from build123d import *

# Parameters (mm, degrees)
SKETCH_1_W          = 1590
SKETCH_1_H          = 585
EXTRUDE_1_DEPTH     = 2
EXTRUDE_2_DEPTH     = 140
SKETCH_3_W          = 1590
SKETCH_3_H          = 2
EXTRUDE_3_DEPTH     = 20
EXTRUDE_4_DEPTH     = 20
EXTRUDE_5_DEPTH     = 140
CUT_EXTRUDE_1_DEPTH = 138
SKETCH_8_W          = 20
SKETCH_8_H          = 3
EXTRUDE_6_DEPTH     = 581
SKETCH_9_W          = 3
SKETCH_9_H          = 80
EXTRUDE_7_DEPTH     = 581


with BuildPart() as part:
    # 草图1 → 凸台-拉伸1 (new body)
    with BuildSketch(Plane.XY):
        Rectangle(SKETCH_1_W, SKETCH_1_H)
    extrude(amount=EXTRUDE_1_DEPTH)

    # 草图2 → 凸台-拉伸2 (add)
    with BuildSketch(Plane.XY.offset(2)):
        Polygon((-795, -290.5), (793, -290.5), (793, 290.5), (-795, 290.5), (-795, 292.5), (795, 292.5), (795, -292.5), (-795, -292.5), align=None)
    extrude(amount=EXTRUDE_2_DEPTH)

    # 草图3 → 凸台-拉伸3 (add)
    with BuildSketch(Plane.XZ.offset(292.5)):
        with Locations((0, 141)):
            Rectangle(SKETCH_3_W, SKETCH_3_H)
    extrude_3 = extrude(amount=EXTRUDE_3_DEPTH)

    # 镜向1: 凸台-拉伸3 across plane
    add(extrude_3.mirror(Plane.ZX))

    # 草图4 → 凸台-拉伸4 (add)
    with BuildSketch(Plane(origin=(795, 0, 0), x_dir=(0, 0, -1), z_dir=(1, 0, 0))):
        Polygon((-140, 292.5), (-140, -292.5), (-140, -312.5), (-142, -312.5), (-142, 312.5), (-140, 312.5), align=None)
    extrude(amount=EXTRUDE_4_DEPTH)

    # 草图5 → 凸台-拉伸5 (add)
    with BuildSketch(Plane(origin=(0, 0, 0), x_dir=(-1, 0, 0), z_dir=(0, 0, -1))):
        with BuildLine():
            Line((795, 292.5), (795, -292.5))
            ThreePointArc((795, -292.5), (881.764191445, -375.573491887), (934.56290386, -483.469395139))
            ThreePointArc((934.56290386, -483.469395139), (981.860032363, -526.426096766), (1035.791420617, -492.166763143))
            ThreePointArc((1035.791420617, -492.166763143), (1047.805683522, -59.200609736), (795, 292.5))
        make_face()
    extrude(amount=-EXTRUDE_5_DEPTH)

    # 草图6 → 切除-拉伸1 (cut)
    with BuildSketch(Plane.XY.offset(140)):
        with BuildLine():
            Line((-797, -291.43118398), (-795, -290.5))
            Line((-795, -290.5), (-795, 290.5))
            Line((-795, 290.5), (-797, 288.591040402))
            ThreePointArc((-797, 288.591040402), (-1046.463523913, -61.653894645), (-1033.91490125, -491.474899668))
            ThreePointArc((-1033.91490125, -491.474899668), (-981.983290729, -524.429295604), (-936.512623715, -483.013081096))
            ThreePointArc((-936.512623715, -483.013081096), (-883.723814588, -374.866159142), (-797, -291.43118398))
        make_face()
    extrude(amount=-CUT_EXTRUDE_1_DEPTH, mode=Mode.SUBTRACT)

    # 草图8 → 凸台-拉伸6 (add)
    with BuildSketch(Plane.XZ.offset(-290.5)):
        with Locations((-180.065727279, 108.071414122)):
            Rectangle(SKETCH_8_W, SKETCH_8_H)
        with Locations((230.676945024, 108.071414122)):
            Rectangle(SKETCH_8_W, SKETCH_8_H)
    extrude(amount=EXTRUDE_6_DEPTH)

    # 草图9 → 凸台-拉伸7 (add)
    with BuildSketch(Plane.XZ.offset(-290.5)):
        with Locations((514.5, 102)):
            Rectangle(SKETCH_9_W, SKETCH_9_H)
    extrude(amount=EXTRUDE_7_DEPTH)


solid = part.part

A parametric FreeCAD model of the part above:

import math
import FreeCAD as App
import Part
import Sketcher
from FreeCAD import Vector
Q = App.Units.Quantity


def add_polygon(sketch, points):
    """Adds a closed chain of lines whose ends are joined by coincident constraints."""
    first, n = sketch.GeometryCount, len(points)
    for a, b in zip(points, points[1:] + points[:1]):
        sketch.addGeometry(Part.LineSegment(App.Vector(*a, 0), App.Vector(*b, 0)), False)
    for i in range(n):
        sketch.addConstraint(Sketcher.Constraint("Coincident", first + i, 2, first + (i + 1) % n, 1))

doc = App.newDocument("Part")
body = doc.addObject("PartDesign::Body", "Body")

# Sketch on XY plane
sketch1 = body.newObject("Sketcher::SketchObject", "Sketch")
sketch1.AttachmentSupport = (doc.getObject("XY_Plane"), [""])
sketch1.MapMode = "FlatFace"
add_polygon(sketch1, [(-795, 292.5), (-795, -292.5), (795, -292.5), (795, 292.5)])  # lines 0-3
sketch1.addConstraint(Sketcher.Constraint("Vertical", 0))
sketch1.addConstraint(Sketcher.Constraint("Horizontal", 1))
sketch1.addConstraint(Sketcher.Constraint("Vertical", 2))
sketch1.addConstraint(Sketcher.Constraint("Horizontal", 3))
sketch1.addConstraint(Sketcher.Constraint("Symmetric", 0, 2, 2, 2, -1, 1))
sketch1.addConstraint(Sketcher.Constraint("DistanceX", 1, 1, 1, 2, Q("1590 mm")))
sketch1.addConstraint(Sketcher.Constraint("DistanceY", 0, 2, 0, 1, Q("585 mm")))
pad1 = body.newObject("PartDesign::Pad", "Pad")
pad1.Profile = sketch1
pad1.Length = 2

# Sketch on XY plane
sketch2 = body.newObject("Sketcher::SketchObject", "Sketch001")
sketch2.AttachmentSupport = (doc.getObject("XY_Plane"), [""])
sketch2.MapMode = "FlatFace"
sketch2.AttachmentOffset = App.Placement(Vector(0, 0, 2), App.Rotation())
add_polygon(sketch2, [(793, -290.5), (-795, -290.5), (-795, -292.5), (795, -292.5), (795, 292.5), (-795, 292.5), (-795, 290.5), (793, 290.5)])  # lines 0-7
sketch2.addConstraint(Sketcher.Constraint("Horizontal", 0))
sketch2.addConstraint(Sketcher.Constraint("Vertical", 1))
sketch2.addConstraint(Sketcher.Constraint("Horizontal", 2))
sketch2.addConstraint(Sketcher.Constraint("Vertical", 3))
sketch2.addConstraint(Sketcher.Constraint("Horizontal", 4))
sketch2.addConstraint(Sketcher.Constraint("Vertical", 5))
sketch2.addConstraint(Sketcher.Constraint("Horizontal", 6))
sketch2.addConstraint(Sketcher.Constraint("Vertical", 7))
sketch2.addConstraint(Sketcher.Constraint("Symmetric", 1, 2, 3, 2, -1, 1))
sketch2.addConstraint(Sketcher.Constraint("Symmetric", 0, 2, 5, 2, -1))
sketch2.addConstraint(Sketcher.Constraint("DistanceX", 0, 2, 0, 1, Q("1588 mm")))
sketch2.addConstraint(Sketcher.Constraint("DistanceX", 2, 1, 2, 2, Q("1590 mm")))
sketch2.addConstraint(Sketcher.Constraint("DistanceY", 1, 2, 1, 1, Q("2 mm")))
sketch2.addConstraint(Sketcher.Constraint("DistanceY", 3, 1, 3, 2, Q("585 mm")))
pad2 = body.newObject("PartDesign::Pad", "Pad001")
pad2.Profile = sketch2
pad2.Length = 140

# Sketch on XZ plane
sketch3 = body.newObject("Sketcher::SketchObject", "Sketch002")
sketch3.AttachmentSupport = (doc.getObject("XZ_Plane"), [""])
sketch3.MapMode = "FlatFace"
sketch3.AttachmentOffset = App.Placement(Vector(0, 0, 292.5), App.Rotation())
add_polygon(sketch3, [(-795, 142), (-795, 140), (795, 140), (795, 142)])  # lines 0-3
sketch3.addConstraint(Sketcher.Constraint("Vertical", 0))
sketch3.addConstraint(Sketcher.Constraint("Horizontal", 1))
sketch3.addConstraint(Sketcher.Constraint("Vertical", 2))
sketch3.addConstraint(Sketcher.Constraint("Horizontal", 3))
sketch3.addConstraint(Sketcher.Constraint("DistanceX", 1, 1, 1, 2, Q("1590 mm")))
sketch3.addConstraint(Sketcher.Constraint("DistanceY", 0, 2, 0, 1, Q("2 mm")))
sketch3.addConstraint(Sketcher.Constraint("DistanceX", 0, 2, -1, 1, Q("795 mm")))
sketch3.addConstraint(Sketcher.Constraint("DistanceY", -1, 1, 0, 2, Q("140 mm")))
pad3 = body.newObject("PartDesign::Pad", "Pad002")
pad3.Profile = sketch3
pad3.Length = 20
doc.recompute()

mirrored = body.newObject("PartDesign::Mirrored", "Mirrored")
mirrored.Originals = [pad3]
mirrored.MirrorPlane = (doc.getObject("XZ_Plane"), [""])
body.Tip = mirrored

# Sketch on YZ plane
sketch4 = body.newObject("Sketcher::SketchObject", "Sketch003")
sketch4.AttachmentSupport = (doc.getObject("YZ_Plane"), [""])
sketch4.MapMode = "FlatFace"
sketch4.AttachmentOffset = App.Placement(Vector(0, 0, 795), App.Rotation())
add_polygon(sketch4, [(-312.5, 140), (312.5, 140), (312.5, 142), (-312.5, 142)])  # lines 0-3
sketch4.addConstraint(Sketcher.Constraint("Horizontal", 0))
sketch4.addConstraint(Sketcher.Constraint("Vertical", 1))
sketch4.addConstraint(Sketcher.Constraint("Horizontal", 2))
sketch4.addConstraint(Sketcher.Constraint("Vertical", 3))
sketch4.addConstraint(Sketcher.Constraint("DistanceX", 0, 1, 0, 2, Q("625 mm")))
sketch4.addConstraint(Sketcher.Constraint("DistanceY", 1, 1, 1, 2, Q("2 mm")))
sketch4.addConstraint(Sketcher.Constraint("DistanceY", -1, 1, 0, 2, Q("140 mm")))
sketch4.addConstraint(Sketcher.Constraint("DistanceX", -1, 1, 0, 2, Q("312.5 mm")))
pad4 = body.newObject("PartDesign::Pad", "Pad003")
pad4.Profile = sketch4
pad4.Length = 20

# Sketch on XY plane
sketch5 = body.newObject("Sketcher::SketchObject", "Sketch004")
sketch5.AttachmentSupport = (doc.getObject("XY_Plane"), [""])
sketch5.MapMode = "FlatFace"
sketch5.addGeometry(Part.LineSegment(Vector(-795, 292.5, 0), Vector(-795, -292.5, 0)), False)
sketch5.addGeometry(Part.ArcOfCircle(Part.Circle(Vector(-604.843589, -577.95065, 0), Vector(0, 0, 1), 342.989116), math.radians(123.670049), math.radians(164.010315)), False)
sketch5.addGeometry(Part.ArcOfCircle(Part.Circle(Vector(-986.369112, -473.945001, 0), Vector(0, 0, 1), 52.674446), math.radians(-159.761317), math.radians(-10.417306)), False)
sketch5.addGeometry(Part.ArcOfCircle(Part.Circle(Vector(-400.354894, -257.884437, 0), Vector(0, 0, 1), 677.250166), math.radians(125.641861), math.radians(200.238683)), False)
sketch5.addConstraint(Sketcher.Constraint("Coincident", 0, 2, 1, 1))
sketch5.addConstraint(Sketcher.Constraint("Coincident", 1, 2, 2, 2))
sketch5.addConstraint(Sketcher.Constraint("Tangent", 2, 1, 3, 2))
sketch5.addConstraint(Sketcher.Constraint("Coincident", 3, 1, 0, 1))
sketch5.addConstraint(Sketcher.Constraint("Vertical", 0))
sketch5.addConstraint(Sketcher.Constraint("DistanceY", 0, 2, 0, 1, Q("585 mm")))
sketch5.addConstraint(Sketcher.Constraint("DistanceX", 0, 2, -1, 1, Q("795 mm")))
sketch5.addConstraint(Sketcher.Constraint("DistanceY", 0, 2, -1, 1, Q("292.5 mm")))
sketch5.addConstraint(Sketcher.Constraint("DistanceY", 2, 3, -1, 1, Q("473.945001 mm")))
sketch5.addConstraint(Sketcher.Constraint("Radius", 1, Q("342.989116 mm")))
sketch5.addConstraint(Sketcher.Constraint("Radius", 2, Q("52.674446 mm")))
sketch5.addConstraint(Sketcher.Constraint("Radius", 3, Q("677.250166 mm")))
sketch5.addConstraint(Sketcher.Constraint("DistanceX", 1, 3, -1, 1, Q("604.843589 mm")))
sketch5.addConstraint(Sketcher.Constraint("DistanceX", 2, 3, -1, 1, Q("986.369112 mm")))
pad5 = body.newObject("PartDesign::Pad", "Pad004")
pad5.Profile = sketch5
pad5.Length = 140

# Sketch on XY plane
sketch6 = body.newObject("Sketcher::SketchObject", "Sketch005")
sketch6.AttachmentSupport = (doc.getObject("XY_Plane"), [""])
sketch6.MapMode = "FlatFace"
sketch6.AttachmentOffset = App.Placement(Vector(0, 0, 140), App.Rotation())
sketch6.addGeometry(Part.LineSegment(Vector(-797, -291.431184, 0), Vector(-795, -290.5, 0)), False)
sketch6.addGeometry(Part.LineSegment(Vector(-795, -290.5, 0), Vector(-795, 290.5, 0)), False)
sketch6.addGeometry(Part.LineSegment(Vector(-795, 290.5, 0), Vector(-797, 288.59104, 0)), False)
sketch6.addGeometry(Part.ArcOfCircle(Part.Circle(Vector(-400.354894, -257.884437, 0), Vector(0, 0, 1), 675.250166), math.radians(125.973052), math.radians(200.238683)), False)
sketch6.addGeometry(Part.ArcOfCircle(Part.Circle(Vector(-986.369112, -473.945001, 0), Vector(0, 0, 1), 50.674446), math.radians(-159.761317), math.radians(-10.308478)), False)
sketch6.addGeometry(Part.ArcOfCircle(Part.Circle(Vector(-604.843589, -577.95065, 0), Vector(0, 0, 1), 344.989116), math.radians(123.848075), math.radians(164.02666)), False)
sketch6.addConstraint(Sketcher.Constraint("Coincident", 0, 2, 1, 1))
sketch6.addConstraint(Sketcher.Constraint("Coincident", 1, 2, 2, 1))
sketch6.addConstraint(Sketcher.Constraint("Coincident", 2, 2, 3, 1))
sketch6.addConstraint(Sketcher.Constraint("Tangent", 3, 2, 4, 1))
sketch6.addConstraint(Sketcher.Constraint("Coincident", 4, 2, 5, 2))
sketch6.addConstraint(Sketcher.Constraint("Coincident", 5, 1, 0, 1))
sketch6.addConstraint(Sketcher.Constraint("Vertical", 1))
sketch6.addConstraint(Sketcher.Constraint("Vertical", 2, 2, 5, 1))
sketch6.addConstraint(Sketcher.Constraint("DistanceY", 1, 1, 1, 2, Q("581 mm")))
sketch6.addConstraint(Sketcher.Constraint("DistanceX", 0, 2, -1, 1, Q("795 mm")))
sketch6.addConstraint(Sketcher.Constraint("DistanceX", 2, 2, -1, 1, Q("797 mm")))
sketch6.addConstraint(Sketcher.Constraint("DistanceY", 0, 2, -1, 1, Q("290.5 mm")))
sketch6.addConstraint(Sketcher.Constraint("DistanceY", 4, 3, -1, 1, Q("473.945001 mm")))
sketch6.addConstraint(Sketcher.Constraint("Radius", 3, Q("675.250166 mm")))
sketch6.addConstraint(Sketcher.Constraint("Radius", 4, Q("50.674446 mm")))
sketch6.addConstraint(Sketcher.Constraint("Radius", 5, Q("344.989116 mm")))
sketch6.addConstraint(Sketcher.Constraint("Distance", 2, Q("2.764801 mm")))
sketch6.addConstraint(Sketcher.Constraint("DistanceX", 3, 2, -1, 1, Q("1033.914901 mm")))
sketch6.addConstraint(Sketcher.Constraint("Distance", 0, Q("2.206151 mm")))
sketch6.addConstraint(Sketcher.Constraint("DistanceX", 5, 3, -1, 1, Q("604.843589 mm")))
pocket1 = body.newObject("PartDesign::Pocket", "Pocket")
pocket1.Profile = sketch6
pocket1.Length = 138

# Sketch on XZ plane
sketch7 = body.newObject("Sketcher::SketchObject", "Sketch006")
sketch7.AttachmentSupport = (doc.getObject("XZ_Plane"), [""])
sketch7.MapMode = "FlatFace"
sketch7.AttachmentOffset = App.Placement(Vector(0, 0, -290.5), App.Rotation())
add_polygon(sketch7, [(-190.065727, 109.571414), (-190.065727, 106.571414), (-170.065727, 106.571414), (-170.065727, 109.571414)])  # lines 0-3
add_polygon(sketch7, [(220.676945, 109.571414), (220.676945, 106.571414), (240.676945, 106.571414), (240.676945, 109.571414)])  # lines 4-7
sketch7.addConstraint(Sketcher.Constraint("Vertical", 0))
sketch7.addConstraint(Sketcher.Constraint("Horizontal", 1))
sketch7.addConstraint(Sketcher.Constraint("Vertical", 2))
sketch7.addConstraint(Sketcher.Constraint("Horizontal", 3))
sketch7.addConstraint(Sketcher.Constraint("Vertical", 4))
sketch7.addConstraint(Sketcher.Constraint("Horizontal", 5))
sketch7.addConstraint(Sketcher.Constraint("Vertical", 6))
sketch7.addConstraint(Sketcher.Constraint("Horizontal", 7))
sketch7.addConstraint(Sketcher.Constraint("Horizontal", 1, 2, 4, 2))
sketch7.addConstraint(Sketcher.Constraint("Horizontal", 3, 2, 6, 2))
sketch7.addConstraint(Sketcher.Constraint("Equal", 3, 5))
sketch7.addConstraint(Sketcher.Constraint("DistanceX", 1, 1, 1, 2, Q("20 mm")))
sketch7.addConstraint(Sketcher.Constraint("DistanceY", 0, 2, 0, 1, Q("3 mm")))
sketch7.addConstraint(Sketcher.Constraint("DistanceX", 0, 2, -1, 1, Q("190.065727 mm")))
sketch7.addConstraint(Sketcher.Constraint("DistanceY", -1, 1, 0, 2, Q("106.571414 mm")))
sketch7.addConstraint(Sketcher.Constraint("DistanceX", -1, 1, 4, 2, Q("220.676945 mm")))
pad6 = body.newObject("PartDesign::Pad", "Pad005")
pad6.Profile = sketch7
pad6.Length = 581

# Sketch on XZ plane
sketch8 = body.newObject("Sketcher::SketchObject", "Sketch007")
sketch8.AttachmentSupport = (doc.getObject("XZ_Plane"), [""])
sketch8.MapMode = "FlatFace"
sketch8.AttachmentOffset = App.Placement(Vector(0, 0, -290.5), App.Rotation())
add_polygon(sketch8, [(513, 142), (513, 62), (516, 62), (516, 142)])  # lines 0-3
sketch8.addConstraint(Sketcher.Constraint("Vertical", 0))
sketch8.addConstraint(Sketcher.Constraint("Horizontal", 1))
sketch8.addConstraint(Sketcher.Constraint("Vertical", 2))
sketch8.addConstraint(Sketcher.Constraint("Horizontal", 3))
sketch8.addConstraint(Sketcher.Constraint("DistanceX", 1, 1, 1, 2, Q("3 mm")))
sketch8.addConstraint(Sketcher.Constraint("DistanceY", 0, 2, 0, 1, Q("80 mm")))
sketch8.addConstraint(Sketcher.Constraint("DistanceX", -1, 1, 0, 2, Q("513 mm")))
sketch8.addConstraint(Sketcher.Constraint("DistanceY", -1, 1, 0, 2, Q("62 mm")))
pad7 = body.newObject("PartDesign::Pad", "Pad006")
pad7.Profile = sketch8
pad7.Length = 581

doc.recompute()
